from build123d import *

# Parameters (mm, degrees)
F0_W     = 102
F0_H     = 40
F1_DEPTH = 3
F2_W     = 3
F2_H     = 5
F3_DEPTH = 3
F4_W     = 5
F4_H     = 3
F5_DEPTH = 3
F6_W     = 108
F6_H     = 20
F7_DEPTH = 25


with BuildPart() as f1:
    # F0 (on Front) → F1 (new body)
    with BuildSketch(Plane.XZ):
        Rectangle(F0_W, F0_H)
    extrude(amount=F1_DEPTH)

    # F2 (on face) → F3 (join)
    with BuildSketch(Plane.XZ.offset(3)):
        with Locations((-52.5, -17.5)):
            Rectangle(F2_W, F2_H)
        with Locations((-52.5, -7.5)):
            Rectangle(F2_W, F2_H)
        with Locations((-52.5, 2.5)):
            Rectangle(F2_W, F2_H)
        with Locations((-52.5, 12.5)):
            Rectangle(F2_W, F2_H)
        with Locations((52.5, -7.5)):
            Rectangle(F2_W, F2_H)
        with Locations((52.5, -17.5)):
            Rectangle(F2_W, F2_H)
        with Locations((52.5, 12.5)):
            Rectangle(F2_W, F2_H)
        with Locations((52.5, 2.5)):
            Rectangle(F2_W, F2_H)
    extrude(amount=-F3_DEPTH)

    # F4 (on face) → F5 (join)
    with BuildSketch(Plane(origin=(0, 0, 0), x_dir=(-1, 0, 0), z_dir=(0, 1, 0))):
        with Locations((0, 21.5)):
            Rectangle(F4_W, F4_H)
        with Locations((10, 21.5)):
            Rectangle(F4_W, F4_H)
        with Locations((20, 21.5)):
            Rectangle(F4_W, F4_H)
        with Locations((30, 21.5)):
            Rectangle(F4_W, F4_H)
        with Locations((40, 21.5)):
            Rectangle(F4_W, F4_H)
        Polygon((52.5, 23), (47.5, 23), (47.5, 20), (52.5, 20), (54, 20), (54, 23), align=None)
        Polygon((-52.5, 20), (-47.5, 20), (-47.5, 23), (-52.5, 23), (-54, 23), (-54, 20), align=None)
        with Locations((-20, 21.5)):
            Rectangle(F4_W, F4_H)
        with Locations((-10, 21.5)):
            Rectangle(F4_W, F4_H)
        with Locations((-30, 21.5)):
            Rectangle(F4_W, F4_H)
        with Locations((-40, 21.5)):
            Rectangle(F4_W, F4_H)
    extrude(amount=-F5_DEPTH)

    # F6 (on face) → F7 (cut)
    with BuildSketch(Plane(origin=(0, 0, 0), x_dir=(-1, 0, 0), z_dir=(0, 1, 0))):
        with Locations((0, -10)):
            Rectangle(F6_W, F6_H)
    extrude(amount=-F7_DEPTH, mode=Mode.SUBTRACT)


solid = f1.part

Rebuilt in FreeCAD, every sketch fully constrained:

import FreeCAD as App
import Part
import Sketcher

V = App.Vector
Q = App.Units.Quantity

doc = App.newDocument("Part")
body = doc.addObject("PartDesign::Body", "Body")

# Sketch on XZ plane
sketch1 = body.newObject("Sketcher::SketchObject", "Sketch")
sketch1.AttachmentSupport = (doc.getObject("XZ_Plane"), [""])
sketch1.MapMode = "FlatFace"
sketch1.addGeometry([
    Part.LineSegment(V(-51, 20, 0), V(-51, -20, 0)),
    Part.LineSegment(V(-51, -20, 0), V(51, -20, 0)),
    Part.LineSegment(V(51, -20, 0), V(51, 20, 0)),
    Part.LineSegment(V(51, 20, 0), V(-51, 20, 0)),
], False)
sketch1.addConstraint([
    Sketcher.Constraint("Coincident", 0, 2, 1, 1),
    Sketcher.Constraint("Coincident", 1, 2, 2, 1),
    Sketcher.Constraint("Coincident", 2, 2, 3, 1),
    Sketcher.Constraint("Coincident", 3, 2, 0, 1),
    Sketcher.Constraint("Vertical", 0),
    Sketcher.Constraint("Horizontal", 1),
    Sketcher.Constraint("Vertical", 2),
    Sketcher.Constraint("Horizontal", 3),
    Sketcher.Constraint("Symmetric", 0, 2, 2, 2, -1, 1),
    Sketcher.Constraint("DistanceX", 1, 1, 1, 2, Q("102 mm")),
    Sketcher.Constraint("DistanceY", 0, 2, 0, 1, Q("40 mm")),
])
pad1 = body.newObject("PartDesign::Pad", "Pad")
pad1.Profile = sketch1
pad1.Length = 3

# Sketch on XZ plane
sketch2 = body.newObject("Sketcher::SketchObject", "Sketch001")
sketch2.AttachmentSupport = (doc.getObject("XZ_Plane"), [""])
sketch2.MapMode = "FlatFace"
sketch2.AttachmentOffset = App.Placement(V(0, 0, 3), App.Rotation())
sketch2.addGeometry([
    Part.LineSegment(V(-54, -15, 0), V(-54, -20, 0)),  # 0
    Part.LineSegment(V(-54, -20, 0), V(-51, -20, 0)),  # 1
    Part.LineSegment(V(-51, -20, 0), V(-51, -15, 0)),  # 2
    Part.LineSegment(V(-51, -15, 0), V(-54, -15, 0)),  # 3
    Part.LineSegment(V(-54, -5, 0), V(-54, -10, 0)),  # 4
    Part.LineSegment(V(-54, -10, 0), V(-51, -10, 0)),  # 5
    Part.LineSegment(V(-51, -10, 0), V(-51, -5, 0)),  # 6
    Part.LineSegment(V(-51, -5, 0), V(-54, -5, 0)),  # 7
    Part.LineSegment(V(-54, 5, 0), V(-54, 0, 0)),  # 8
    Part.LineSegment(V(-54, 0, 0), V(-51, 0, 0)),  # 9
    Part.LineSegment(V(-51, 0, 0), V(-51, 5, 0)),  # 10
    Part.LineSegment(V(-51, 5, 0), V(-54, 5, 0)),  # 11
    Part.LineSegment(V(-54, 15, 0), V(-54, 10, 0)),  # 12
    Part.LineSegment(V(-54, 10, 0), V(-51, 10, 0)),  # 13
    Part.LineSegment(V(-51, 10, 0), V(-51, 15, 0)),  # 14
    Part.LineSegment(V(-51, 15, 0), V(-54, 15, 0)),  # 15
    Part.LineSegment(V(51, -5, 0), V(51, -10, 0)),  # 16
    Part.LineSegment(V(51, -10, 0), V(54, -10, 0)),  # 17
    Part.LineSegment(V(54, -10, 0), V(54, -5, 0)),  # 18
    Part.LineSegment(V(54, -5, 0), V(51, -5, 0)),  # 19
    Part.LineSegment(V(51, -15, 0), V(51, -20, 0)),  # 20
    Part.LineSegment(V(51, -20, 0), V(54, -20, 0)),  # 21
    Part.LineSegment(V(54, -20, 0), V(54, -15, 0)),  # 22
    Part.LineSegment(V(54, -15, 0), V(51, -15, 0)),  # 23
    Part.LineSegment(V(51, 15, 0), V(51, 10, 0)),  # 24
    Part.LineSegment(V(51, 10, 0), V(54, 10, 0)),  # 25
    Part.LineSegment(V(54, 10, 0), V(54, 15, 0)),  # 26
    Part.LineSegment(V(54, 15, 0), V(51, 15, 0)),  # 27
    Part.LineSegment(V(51, 5, 0), V(51, 0, 0)),  # 28
    Part.LineSegment(V(51, 0, 0), V(54, 0, 0)),  # 29
    Part.LineSegment(V(54, 0, 0), V(54, 5, 0)),  # 30
    Part.LineSegment(V(54, 5, 0), V(51, 5, 0)),  # 31
], False)
sketch2.addConstraint([
    Sketcher.Constraint("Coincident", 0, 2, 1, 1),
    Sketcher.Constraint("Coincident", 1, 2, 2, 1),
    Sketcher.Constraint("Coincident", 2, 2, 3, 1),
    Sketcher.Constraint("Coincident", 3, 2, 0, 1),
    Sketcher.Constraint("Coincident", 4, 2, 5, 1),
    Sketcher.Constraint("Coincident", 5, 2, 6, 1),
    Sketcher.Constraint("Coincident", 6, 2, 7, 1),
    Sketcher.Constraint("Coincident", 7, 2, 4, 1),
    Sketcher.Constraint("Coincident", 8, 2, 9, 1),
    Sketcher.Constraint("Coincident", 9, 2, 10, 1),
    Sketcher.Constraint("Coincident", 10, 2, 11, 1),
    Sketcher.Constraint("Coincident", 11, 2, 8, 1),
    Sketcher.Constraint("Coincident", 12, 2, 13, 1),
    Sketcher.Constraint("Coincident", 13, 2, 14, 1),
    Sketcher.Constraint("Coincident", 14, 2, 15, 1),
    Sketcher.Constraint("Coincident", 15, 2, 12, 1),
    Sketcher.Constraint("Coincident", 16, 2, 17, 1),
    Sketcher.Constraint("Coincident", 17, 2, 18, 1),
    Sketcher.Constraint("Coincident", 18, 2, 19, 1),
    Sketcher.Constraint("Coincident", 19, 2, 16, 1),
    Sketcher.Constraint("Coincident", 20, 2, 21, 1),
    Sketcher.Constraint("Coincident", 21, 2, 22, 1),
    Sketcher.Constraint("Coincident", 22, 2, 23, 1),
    Sketcher.Constraint("Coincident", 23, 2, 20, 1),
    Sketcher.Constraint("Coincident", 24, 2, 25, 1),
    Sketcher.Constraint("Coincident", 25, 2, 26, 1),
    Sketcher.Constraint("Coincident", 26, 2, 27, 1),
    Sketcher.Constraint("Coincident", 27, 2, 24, 1),
    Sketcher.Constraint("Coincident", 28, 2, 29, 1),
    Sketcher.Constraint("Coincident", 29, 2, 30, 1),
    Sketcher.Constraint("Coincident", 30, 2, 31, 1),
    Sketcher.Constraint("Coincident", 31, 2, 28, 1),
    Sketcher.Constraint("Vertical", 0),
    Sketcher.Constraint("Horizontal", 1),
    Sketcher.Constraint("Vertical", 2),
    Sketcher.Constraint("Horizontal", 3),
    Sketcher.Constraint("Vertical", 4),
    Sketcher.Constraint("Horizontal", 5),
    Sketcher.Constraint("Vertical", 6),
    Sketcher.Constraint("Horizontal", 7),
    Sketcher.Constraint("Vertical", 8),
    Sketcher.Constraint("Horizontal", 9),
    Sketcher.Constraint("Vertical", 10),
    Sketcher.Constraint("Horizontal", 11),
    Sketcher.Constraint("Vertical", 12),
    Sketcher.Constraint("Horizontal", 13),
    Sketcher.Constraint("Vertical", 14),
    Sketcher.Constraint("Horizontal", 15),
    Sketcher.Constraint("Vertical", 16),
    Sketcher.Constraint("Horizontal", 17),
    Sketcher.Constraint("Vertical", 18),
    Sketcher.Constraint("Horizontal", 19),
    Sketcher.Constraint("Vertical", 20),
    Sketcher.Constraint("Horizontal", 21),
    Sketcher.Constraint("Vertical", 22),
    Sketcher.Constraint("Horizontal", 23),
    Sketcher.Constraint("Vertical", 24),
    Sketcher.Constraint("Horizontal", 25),
    Sketcher.Constraint("Vertical", 26),
    Sketcher.Constraint("Horizontal", 27),
    Sketcher.Constraint("Vertical", 28),
    Sketcher.Constraint("Horizontal", 29),
    Sketcher.Constraint("Vertical", 30),
    Sketcher.Constraint("Horizontal", 31),
    Sketcher.Constraint("Symmetric", 13, 2, 16, 2, -1, 1),
    Sketcher.Constraint("Symmetric", 11, 2, 18, 2, -1, 1),
    Sketcher.Constraint("Symmetric", 15, 2, 22, 2, -1, 1),
    Sketcher.Constraint("Symmetric", 5, 2, 24, 2, -1, 1),
    Sketcher.Constraint("Symmetric", 3, 2, 26, 2, -1, 1),
    Sketcher.Constraint("Symmetric", 9, 2, 28, 2, -1, 1),
    Sketcher.Constraint("Symmetric", 7, 2, 30, 2, -1, 1),
    Sketcher.Constraint("Symmetric", 5, 2, 16, 2, -2),
    Sketcher.Constraint("Symmetric", 7, 2, 18, 2, -2),
    Sketcher.Constraint("Symmetric", 1, 2, 20, 2, -2),
    Sketcher.Constraint("Symmetric", 3, 2, 22, 2, -2),
    Sketcher.Constraint("PointOnObject", 8, 2, -1),
    Sketcher.Constraint("Vertical", 3, 2, 4, 2),
    Sketcher.Constraint("Vertical", 2, 2, 5, 2),
    Sketcher.Constraint("Vertical", 6, 2, 9, 2),
    Sketcher.Constraint("Equal", 2, 4),
    Sketcher.Constraint("Equal", 6, 8),
    Sketcher.Constraint("Equal", 10, 12),
    Sketcher.Constraint("DistanceX", 1, 1, 1, 2, Q("3 mm")),
    Sketcher.Constraint("DistanceY", 0, 2, 0, 1, Q("5 mm")),
    Sketcher.Constraint("DistanceX", 0, 2, -1, 1, Q("54 mm")),
])
pad2 = body.newObject("PartDesign::Pad", "Pad001")
pad2.Profile = sketch2
pad2.Length = 3
pad2.Reversed = True

# Sketch on XZ plane
sketch3 = body.newObject("Sketcher::SketchObject", "Sketch002")
sketch3.AttachmentSupport = (doc.getObject("XZ_Plane"), [""])
sketch3.MapMode = "FlatFace"
sketch3.addGeometry([
    Part.LineSegment(V(2.5, 23, 0), V(2.5, 20, 0)),  # 0
    Part.LineSegment(V(2.5, 20, 0), V(-2.5, 20, 0)),  # 1
    Part.LineSegment(V(-2.5, 20, 0), V(-2.5, 23, 0)),  # 2
    Part.LineSegment(V(-2.5, 23, 0), V(2.5, 23, 0)),  # 3
    Part.LineSegment(V(-7.5, 23, 0), V(-7.5, 20, 0)),  # 4
    Part.LineSegment(V(-7.5, 20, 0), V(-12.5, 20, 0)),  # 5
    Part.LineSegment(V(-12.5, 20, 0), V(-12.5, 23, 0)),  # 6
    Part.LineSegment(V(-12.5, 23, 0), V(-7.5, 23, 0)),  # 7
    Part.LineSegment(V(-17.5, 23, 0), V(-17.5, 20, 0)),  # 8
    Part.LineSegment(V(-17.5, 20, 0), V(-22.5, 20, 0)),  # 9
    Part.LineSegment(V(-22.5, 20, 0), V(-22.5, 23, 0)),  # 10
    Part.LineSegment(V(-22.5, 23, 0), V(-17.5, 23, 0)),  # 11
    Part.LineSegment(V(-27.5, 23, 0), V(-27.5, 20, 0)),  # 12
    Part.LineSegment(V(-27.5, 20, 0), V(-32.5, 20, 0)),  # 13
    Part.LineSegment(V(-32.5, 20, 0), V(-32.5, 23, 0)),  # 14
    Part.LineSegment(V(-32.5, 23, 0), V(-27.5, 23, 0)),  # 15
    Part.LineSegment(V(-37.5, 23, 0), V(-37.5, 20, 0)),  # 16
    Part.LineSegment(V(-37.5, 20, 0), V(-42.5, 20, 0)),  # 17
    Part.LineSegment(V(-42.5, 20, 0), V(-42.5, 23, 0)),  # 18
    Part.LineSegment(V(-42.5, 23, 0), V(-37.5, 23, 0)),  # 19
    Part.LineSegment(V(-47.5, 23, 0), V(-47.5, 20, 0)),  # 20
    Part.LineSegment(V(-47.5, 20, 0), V(-54, 20, 0)),  # 21
    Part.LineSegment(V(-54, 20, 0), V(-54, 23, 0)),  # 22
    Part.LineSegment(V(-54, 23, 0), V(-47.5, 23, 0)),  # 23
    Part.LineSegment(V(47.5, 20, 0), V(47.5, 23, 0)),  # 24
    Part.LineSegment(V(47.5, 23, 0), V(54, 23, 0)),  # 25
    Part.LineSegment(V(54, 23, 0), V(54, 20, 0)),  # 26
    Part.LineSegment(V(54, 20, 0), V(47.5, 20, 0)),  # 27
    Part.LineSegment(V(22.5, 23, 0), V(22.5, 20, 0)),  # 28
    Part.LineSegment(V(22.5, 20, 0), V(17.5, 20, 0)),  # 29
    Part.LineSegment(V(17.5, 20, 0), V(17.5, 23, 0)),  # 30
    Part.LineSegment(V(17.5, 23, 0), V(22.5, 23, 0)),  # 31
    Part.LineSegment(V(12.5, 23, 0), V(12.5, 20, 0)),  # 32
    Part.LineSegment(V(12.5, 20, 0), V(7.5, 20, 0)),  # 33
    Part.LineSegment(V(7.5, 20, 0), V(7.5, 23, 0)),  # 34
    Part.LineSegment(V(7.5, 23, 0), V(12.5, 23, 0)),  # 35
    Part.LineSegment(V(32.5, 23, 0), V(32.5, 20, 0)),  # 36
    Part.LineSegment(V(32.5, 20, 0), V(27.5, 20, 0)),  # 37
    Part.LineSegment(V(27.5, 20, 0), V(27.5, 23, 0)),  # 38
    Part.LineSegment(V(27.5, 23, 0), V(32.5, 23, 0)),  # 39
    Part.LineSegment(V(42.5, 23, 0), V(42.5, 20, 0)),  # 40
    Part.LineSegment(V(42.5, 20, 0), V(37.5, 20, 0)),  # 41
    Part.LineSegment(V(37.5, 20, 0), V(37.5, 23, 0)),  # 42
    Part.LineSegment(V(37.5, 23, 0), V(42.5, 23, 0)),  # 43
], False)
sketch3.addConstraint([
    Sketcher.Constraint("Coincident", 0, 2, 1, 1),
    Sketcher.Constraint("Coincident", 1, 2, 2, 1),
    Sketcher.Constraint("Coincident", 2, 2, 3, 1),
    Sketcher.Constraint("Coincident", 3, 2, 0, 1),
    Sketcher.Constraint("Coincident", 4, 2, 5, 1),
    Sketcher.Constraint("Coincident", 5, 2, 6, 1),
    Sketcher.Constraint("Coincident", 6, 2, 7, 1),
    Sketcher.Constraint("Coincident", 7, 2, 4, 1),
    Sketcher.Constraint("Coincident", 8, 2, 9, 1),
    Sketcher.Constraint("Coincident", 9, 2, 10, 1),
    Sketcher.Constraint("Coincident", 10, 2, 11, 1),
    Sketcher.Constraint("Coincident", 11, 2, 8, 1),
    Sketcher.Constraint("Coincident", 12, 2, 13, 1),
    Sketcher.Constraint("Coincident", 13, 2, 14, 1),
    Sketcher.Constraint("Coincident", 14, 2, 15, 1),
    Sketcher.Constraint("Coincident", 15, 2, 12, 1),
    Sketcher.Constraint("Coincident", 16, 2, 17, 1),
    Sketcher.Constraint("Coincident", 17, 2, 18, 1),
    Sketcher.Constraint("Coincident", 18, 2, 19, 1),
    Sketcher.Constraint("Coincident", 19, 2, 16, 1),
    Sketcher.Constraint("Coincident", 20, 2, 21, 1),
    Sketcher.Constraint("Coincident", 21, 2, 22, 1),
    Sketcher.Constraint("Coincident", 22, 2, 23, 1),
    Sketcher.Constraint("Coincident", 23, 2, 20, 1),
    Sketcher.Constraint("Coincident", 24, 2, 25, 1),
    Sketcher.Constraint("Coincident", 25, 2, 26, 1),
    Sketcher.Constraint("Coincident", 26, 2, 27, 1),
    Sketcher.Constraint("Coincident", 27, 2, 24, 1),
    Sketcher.Constraint("Coincident", 28, 2, 29, 1),
    Sketcher.Constraint("Coincident", 29, 2, 30, 1),
    Sketcher.Constraint("Coincident", 30, 2, 31, 1),
    Sketcher.Constraint("Coincident", 31, 2, 28, 1),
    Sketcher.Constraint("Coincident", 32, 2, 33, 1),
    Sketcher.Constraint("Coincident", 33, 2, 34, 1),
    Sketcher.Constraint("Coincident", 34, 2, 35, 1),
    Sketcher.Constraint("Coincident", 35, 2, 32, 1),
    Sketcher.Constraint("Coincident", 36, 2, 37, 1),
    Sketcher.Constraint("Coincident", 37, 2, 38, 1),
    Sketcher.Constraint("Coincident", 38, 2, 39, 1),
    Sketcher.Constraint("Coincident", 39, 2, 36, 1),
    Sketcher.Constraint("Coincident", 40, 2, 41, 1),
    Sketcher.Constraint("Coincident", 41, 2, 42, 1),
    Sketcher.Constraint("Coincident", 42, 2, 43, 1),
    Sketcher.Constraint("Coincident", 43, 2, 40, 1),
    Sketcher.Constraint("Vertical", 0),
    Sketcher.Constraint("Horizontal", 1),
    Sketcher.Constraint("Vertical", 2),
    Sketcher.Constraint("Horizontal", 3),
    Sketcher.Constraint("Vertical", 4),
    Sketcher.Constraint("Horizontal", 5),
    Sketcher.Constraint("Vertical", 6),
    Sketcher.Constraint("Horizontal", 7),
    Sketcher.Constraint("Vertical", 8),
    Sketcher.Constraint("Horizontal", 9),
    Sketcher.Constraint("Vertical", 10),
    Sketcher.Constraint("Horizontal", 11),
    Sketcher.Constraint("Vertical", 12),
    Sketcher.Constraint("Horizontal", 13),
    Sketcher.Constraint("Vertical", 14),
    Sketcher.Constraint("Horizontal", 15),
    Sketcher.Constraint("Vertical", 16),
    Sketcher.Constraint("Horizontal", 17),
    Sketcher.Constraint("Vertical", 18),
    Sketcher.Constraint("Horizontal", 19),
    Sketcher.Constraint("Vertical", 20),
    Sketcher.Constraint("Horizontal", 21),
    Sketcher.Constraint("Vertical", 22),
    Sketcher.Constraint("Horizontal", 23),
    Sketcher.Constraint("Vertical", 24),
    Sketcher.Constraint("Horizontal", 25),
    Sketcher.Constraint("Vertical", 26),
    Sketcher.Constraint("Horizontal", 27),
    Sketcher.Constraint("Vertical", 28),
    Sketcher.Constraint("Horizontal", 29),
    Sketcher.Constraint("Vertical", 30),
    Sketcher.Constraint("Horizontal", 31),
    Sketcher.Constraint("Vertical", 32),
    Sketcher.Constraint("Horizontal", 33),
    Sketcher.Constraint("Vertical", 34),
    Sketcher.Constraint("Horizontal", 35),
    Sketcher.Constraint("Vertical", 36),
    Sketcher.Constraint("Horizontal", 37),
    Sketcher.Constraint("Vertical", 38),
    Sketcher.Constraint("Horizontal", 39),
    Sketcher.Constraint("Vertical", 40),
    Sketcher.Constraint("Horizontal", 41),
    Sketcher.Constraint("Vertical", 42),
    Sketcher.Constraint("Horizontal", 43),
    Sketcher.Constraint("Symmetric", 23, 2, 24, 2, -2),
    Sketcher.Constraint("Symmetric", 21, 2, 26, 2, -2),
    Sketcher.Constraint("Symmetric", 9, 2, 28, 2, -2),
    Sketcher.Constraint("Symmetric", 11, 2, 30, 2, -2),
    Sketcher.Constraint("Symmetric", 5, 2, 32, 2, -2),
    Sketcher.Constraint("Symmetric", 7, 2, 34, 2, -2),
    Sketcher.Constraint("Symmetric", 13, 2, 36, 2, -2),
    Sketcher.Constraint("Symmetric", 15, 2, 38, 2, -2),
    Sketcher.Constraint("Symmetric", 17, 2, 40, 2, -2),
    Sketcher.Constraint("Symmetric", 19, 2, 42, 2, -2),
    Sketcher.Constraint("Horizontal", 1, 2, 4, 2),
    Sketcher.Constraint("Horizontal", 3, 2, 6, 2),
    Sketcher.Constraint("Horizontal", 5, 2, 8, 2),
    Sketcher.Constraint("Horizontal", 7, 2, 10, 2),
    Sketcher.Constraint("Horizontal", 9, 2, 12, 2),
    Sketcher.Constraint("Horizontal", 11, 2, 14, 2),
    Sketcher.Constraint("Horizontal", 13, 2, 16, 2),
    Sketcher.Constraint("Horizontal", 15, 2, 18, 2),
    Sketcher.Constraint("Horizontal", 17, 2, 20, 2),
    Sketcher.Constraint("Horizontal", 19, 2, 22, 2),
    Sketcher.Constraint("Equal", 3, 5),
    Sketcher.Constraint("Equal", 7, 9),
    Sketcher.Constraint("Equal", 11, 13),
    Sketcher.Constraint("Equal", 15, 17),
    Sketcher.Constraint("DistanceX", 1, 2, 1, 1, Q("5 mm")),
    Sketcher.Constraint("DistanceY", 0, 2, 0, 1, Q("3 mm")),
    Sketcher.Constraint("DistanceX", 21, 2, 21, 1, Q("6.5 mm")),
    Sketcher.Constraint("DistanceY", -1, 1, 0, 2, Q("20 mm")),
    Sketcher.Constraint("DistanceX", 21, 2, -1, 1, Q("54 mm")),
    Sketcher.Constraint("DistanceX", 4, 2, 1, 2, Q("5 mm")),
    Sketcher.Constraint("DistanceX", 8, 2, 5, 2, Q("5 mm")),
    Sketcher.Constraint("DistanceX", 12, 2, 9, 2, Q("5 mm")),
    Sketcher.Constraint("DistanceX", 16, 2, 13, 2, Q("5 mm")),
    Sketcher.Constraint("DistanceX", 20, 2, 17, 2, Q("5 mm")),
])
pad3 = body.newObject("PartDesign::Pad", "Pad002")
pad3.Profile = sketch3
pad3.Length = 3

# Sketch on XZ plane
sketch4 = body.newObject("Sketcher::SketchObject", "Sketch003")
sketch4.AttachmentSupport = (doc.getObject("XZ_Plane"), [""])
sketch4.MapMode = "FlatFace"
sketch4.addGeometry([
    Part.LineSegment(V(54, 0, 0), V(54, -20, 0)),
    Part.LineSegment(V(54, -20, 0), V(-54, -20, 0)),
    Part.LineSegment(V(-54, -20, 0), V(-54, 0, 0)),
    Part.LineSegment(V(-54, 0, 0), V(54, 0, 0)),
], False)
sketch4.addConstraint([
    Sketcher.Constraint("Coincident", 0, 2, 1, 1),
    Sketcher.Constraint("Coincident", 1, 2, 2, 1),
    Sketcher.Constraint("Coincident", 2, 2, 3, 1),
    Sketcher.Constraint("Coincident", 3, 2, 0, 1),
    Sketcher.Constraint("Vertical", 0),
    Sketcher.Constraint("Horizontal", 1),
    Sketcher.Constraint("Vertical", 2),
    Sketcher.Constraint("Horizontal", 3),
    Sketcher.Constraint("Symmetric", 2, 2, 3, 2, -1, 1),
    Sketcher.Constraint("DistanceX", 1, 2, 1, 1, Q("108 mm")),
    Sketcher.Constraint("DistanceY", 0, 2, 0, 1, Q("20 mm")),
])
pocket1 = body.newObject("PartDesign::Pocket", "Pocket")
pocket1.Profile = sketch4
pocket1.Length = 25
pocket1.Reversed = True

doc.recompute()
